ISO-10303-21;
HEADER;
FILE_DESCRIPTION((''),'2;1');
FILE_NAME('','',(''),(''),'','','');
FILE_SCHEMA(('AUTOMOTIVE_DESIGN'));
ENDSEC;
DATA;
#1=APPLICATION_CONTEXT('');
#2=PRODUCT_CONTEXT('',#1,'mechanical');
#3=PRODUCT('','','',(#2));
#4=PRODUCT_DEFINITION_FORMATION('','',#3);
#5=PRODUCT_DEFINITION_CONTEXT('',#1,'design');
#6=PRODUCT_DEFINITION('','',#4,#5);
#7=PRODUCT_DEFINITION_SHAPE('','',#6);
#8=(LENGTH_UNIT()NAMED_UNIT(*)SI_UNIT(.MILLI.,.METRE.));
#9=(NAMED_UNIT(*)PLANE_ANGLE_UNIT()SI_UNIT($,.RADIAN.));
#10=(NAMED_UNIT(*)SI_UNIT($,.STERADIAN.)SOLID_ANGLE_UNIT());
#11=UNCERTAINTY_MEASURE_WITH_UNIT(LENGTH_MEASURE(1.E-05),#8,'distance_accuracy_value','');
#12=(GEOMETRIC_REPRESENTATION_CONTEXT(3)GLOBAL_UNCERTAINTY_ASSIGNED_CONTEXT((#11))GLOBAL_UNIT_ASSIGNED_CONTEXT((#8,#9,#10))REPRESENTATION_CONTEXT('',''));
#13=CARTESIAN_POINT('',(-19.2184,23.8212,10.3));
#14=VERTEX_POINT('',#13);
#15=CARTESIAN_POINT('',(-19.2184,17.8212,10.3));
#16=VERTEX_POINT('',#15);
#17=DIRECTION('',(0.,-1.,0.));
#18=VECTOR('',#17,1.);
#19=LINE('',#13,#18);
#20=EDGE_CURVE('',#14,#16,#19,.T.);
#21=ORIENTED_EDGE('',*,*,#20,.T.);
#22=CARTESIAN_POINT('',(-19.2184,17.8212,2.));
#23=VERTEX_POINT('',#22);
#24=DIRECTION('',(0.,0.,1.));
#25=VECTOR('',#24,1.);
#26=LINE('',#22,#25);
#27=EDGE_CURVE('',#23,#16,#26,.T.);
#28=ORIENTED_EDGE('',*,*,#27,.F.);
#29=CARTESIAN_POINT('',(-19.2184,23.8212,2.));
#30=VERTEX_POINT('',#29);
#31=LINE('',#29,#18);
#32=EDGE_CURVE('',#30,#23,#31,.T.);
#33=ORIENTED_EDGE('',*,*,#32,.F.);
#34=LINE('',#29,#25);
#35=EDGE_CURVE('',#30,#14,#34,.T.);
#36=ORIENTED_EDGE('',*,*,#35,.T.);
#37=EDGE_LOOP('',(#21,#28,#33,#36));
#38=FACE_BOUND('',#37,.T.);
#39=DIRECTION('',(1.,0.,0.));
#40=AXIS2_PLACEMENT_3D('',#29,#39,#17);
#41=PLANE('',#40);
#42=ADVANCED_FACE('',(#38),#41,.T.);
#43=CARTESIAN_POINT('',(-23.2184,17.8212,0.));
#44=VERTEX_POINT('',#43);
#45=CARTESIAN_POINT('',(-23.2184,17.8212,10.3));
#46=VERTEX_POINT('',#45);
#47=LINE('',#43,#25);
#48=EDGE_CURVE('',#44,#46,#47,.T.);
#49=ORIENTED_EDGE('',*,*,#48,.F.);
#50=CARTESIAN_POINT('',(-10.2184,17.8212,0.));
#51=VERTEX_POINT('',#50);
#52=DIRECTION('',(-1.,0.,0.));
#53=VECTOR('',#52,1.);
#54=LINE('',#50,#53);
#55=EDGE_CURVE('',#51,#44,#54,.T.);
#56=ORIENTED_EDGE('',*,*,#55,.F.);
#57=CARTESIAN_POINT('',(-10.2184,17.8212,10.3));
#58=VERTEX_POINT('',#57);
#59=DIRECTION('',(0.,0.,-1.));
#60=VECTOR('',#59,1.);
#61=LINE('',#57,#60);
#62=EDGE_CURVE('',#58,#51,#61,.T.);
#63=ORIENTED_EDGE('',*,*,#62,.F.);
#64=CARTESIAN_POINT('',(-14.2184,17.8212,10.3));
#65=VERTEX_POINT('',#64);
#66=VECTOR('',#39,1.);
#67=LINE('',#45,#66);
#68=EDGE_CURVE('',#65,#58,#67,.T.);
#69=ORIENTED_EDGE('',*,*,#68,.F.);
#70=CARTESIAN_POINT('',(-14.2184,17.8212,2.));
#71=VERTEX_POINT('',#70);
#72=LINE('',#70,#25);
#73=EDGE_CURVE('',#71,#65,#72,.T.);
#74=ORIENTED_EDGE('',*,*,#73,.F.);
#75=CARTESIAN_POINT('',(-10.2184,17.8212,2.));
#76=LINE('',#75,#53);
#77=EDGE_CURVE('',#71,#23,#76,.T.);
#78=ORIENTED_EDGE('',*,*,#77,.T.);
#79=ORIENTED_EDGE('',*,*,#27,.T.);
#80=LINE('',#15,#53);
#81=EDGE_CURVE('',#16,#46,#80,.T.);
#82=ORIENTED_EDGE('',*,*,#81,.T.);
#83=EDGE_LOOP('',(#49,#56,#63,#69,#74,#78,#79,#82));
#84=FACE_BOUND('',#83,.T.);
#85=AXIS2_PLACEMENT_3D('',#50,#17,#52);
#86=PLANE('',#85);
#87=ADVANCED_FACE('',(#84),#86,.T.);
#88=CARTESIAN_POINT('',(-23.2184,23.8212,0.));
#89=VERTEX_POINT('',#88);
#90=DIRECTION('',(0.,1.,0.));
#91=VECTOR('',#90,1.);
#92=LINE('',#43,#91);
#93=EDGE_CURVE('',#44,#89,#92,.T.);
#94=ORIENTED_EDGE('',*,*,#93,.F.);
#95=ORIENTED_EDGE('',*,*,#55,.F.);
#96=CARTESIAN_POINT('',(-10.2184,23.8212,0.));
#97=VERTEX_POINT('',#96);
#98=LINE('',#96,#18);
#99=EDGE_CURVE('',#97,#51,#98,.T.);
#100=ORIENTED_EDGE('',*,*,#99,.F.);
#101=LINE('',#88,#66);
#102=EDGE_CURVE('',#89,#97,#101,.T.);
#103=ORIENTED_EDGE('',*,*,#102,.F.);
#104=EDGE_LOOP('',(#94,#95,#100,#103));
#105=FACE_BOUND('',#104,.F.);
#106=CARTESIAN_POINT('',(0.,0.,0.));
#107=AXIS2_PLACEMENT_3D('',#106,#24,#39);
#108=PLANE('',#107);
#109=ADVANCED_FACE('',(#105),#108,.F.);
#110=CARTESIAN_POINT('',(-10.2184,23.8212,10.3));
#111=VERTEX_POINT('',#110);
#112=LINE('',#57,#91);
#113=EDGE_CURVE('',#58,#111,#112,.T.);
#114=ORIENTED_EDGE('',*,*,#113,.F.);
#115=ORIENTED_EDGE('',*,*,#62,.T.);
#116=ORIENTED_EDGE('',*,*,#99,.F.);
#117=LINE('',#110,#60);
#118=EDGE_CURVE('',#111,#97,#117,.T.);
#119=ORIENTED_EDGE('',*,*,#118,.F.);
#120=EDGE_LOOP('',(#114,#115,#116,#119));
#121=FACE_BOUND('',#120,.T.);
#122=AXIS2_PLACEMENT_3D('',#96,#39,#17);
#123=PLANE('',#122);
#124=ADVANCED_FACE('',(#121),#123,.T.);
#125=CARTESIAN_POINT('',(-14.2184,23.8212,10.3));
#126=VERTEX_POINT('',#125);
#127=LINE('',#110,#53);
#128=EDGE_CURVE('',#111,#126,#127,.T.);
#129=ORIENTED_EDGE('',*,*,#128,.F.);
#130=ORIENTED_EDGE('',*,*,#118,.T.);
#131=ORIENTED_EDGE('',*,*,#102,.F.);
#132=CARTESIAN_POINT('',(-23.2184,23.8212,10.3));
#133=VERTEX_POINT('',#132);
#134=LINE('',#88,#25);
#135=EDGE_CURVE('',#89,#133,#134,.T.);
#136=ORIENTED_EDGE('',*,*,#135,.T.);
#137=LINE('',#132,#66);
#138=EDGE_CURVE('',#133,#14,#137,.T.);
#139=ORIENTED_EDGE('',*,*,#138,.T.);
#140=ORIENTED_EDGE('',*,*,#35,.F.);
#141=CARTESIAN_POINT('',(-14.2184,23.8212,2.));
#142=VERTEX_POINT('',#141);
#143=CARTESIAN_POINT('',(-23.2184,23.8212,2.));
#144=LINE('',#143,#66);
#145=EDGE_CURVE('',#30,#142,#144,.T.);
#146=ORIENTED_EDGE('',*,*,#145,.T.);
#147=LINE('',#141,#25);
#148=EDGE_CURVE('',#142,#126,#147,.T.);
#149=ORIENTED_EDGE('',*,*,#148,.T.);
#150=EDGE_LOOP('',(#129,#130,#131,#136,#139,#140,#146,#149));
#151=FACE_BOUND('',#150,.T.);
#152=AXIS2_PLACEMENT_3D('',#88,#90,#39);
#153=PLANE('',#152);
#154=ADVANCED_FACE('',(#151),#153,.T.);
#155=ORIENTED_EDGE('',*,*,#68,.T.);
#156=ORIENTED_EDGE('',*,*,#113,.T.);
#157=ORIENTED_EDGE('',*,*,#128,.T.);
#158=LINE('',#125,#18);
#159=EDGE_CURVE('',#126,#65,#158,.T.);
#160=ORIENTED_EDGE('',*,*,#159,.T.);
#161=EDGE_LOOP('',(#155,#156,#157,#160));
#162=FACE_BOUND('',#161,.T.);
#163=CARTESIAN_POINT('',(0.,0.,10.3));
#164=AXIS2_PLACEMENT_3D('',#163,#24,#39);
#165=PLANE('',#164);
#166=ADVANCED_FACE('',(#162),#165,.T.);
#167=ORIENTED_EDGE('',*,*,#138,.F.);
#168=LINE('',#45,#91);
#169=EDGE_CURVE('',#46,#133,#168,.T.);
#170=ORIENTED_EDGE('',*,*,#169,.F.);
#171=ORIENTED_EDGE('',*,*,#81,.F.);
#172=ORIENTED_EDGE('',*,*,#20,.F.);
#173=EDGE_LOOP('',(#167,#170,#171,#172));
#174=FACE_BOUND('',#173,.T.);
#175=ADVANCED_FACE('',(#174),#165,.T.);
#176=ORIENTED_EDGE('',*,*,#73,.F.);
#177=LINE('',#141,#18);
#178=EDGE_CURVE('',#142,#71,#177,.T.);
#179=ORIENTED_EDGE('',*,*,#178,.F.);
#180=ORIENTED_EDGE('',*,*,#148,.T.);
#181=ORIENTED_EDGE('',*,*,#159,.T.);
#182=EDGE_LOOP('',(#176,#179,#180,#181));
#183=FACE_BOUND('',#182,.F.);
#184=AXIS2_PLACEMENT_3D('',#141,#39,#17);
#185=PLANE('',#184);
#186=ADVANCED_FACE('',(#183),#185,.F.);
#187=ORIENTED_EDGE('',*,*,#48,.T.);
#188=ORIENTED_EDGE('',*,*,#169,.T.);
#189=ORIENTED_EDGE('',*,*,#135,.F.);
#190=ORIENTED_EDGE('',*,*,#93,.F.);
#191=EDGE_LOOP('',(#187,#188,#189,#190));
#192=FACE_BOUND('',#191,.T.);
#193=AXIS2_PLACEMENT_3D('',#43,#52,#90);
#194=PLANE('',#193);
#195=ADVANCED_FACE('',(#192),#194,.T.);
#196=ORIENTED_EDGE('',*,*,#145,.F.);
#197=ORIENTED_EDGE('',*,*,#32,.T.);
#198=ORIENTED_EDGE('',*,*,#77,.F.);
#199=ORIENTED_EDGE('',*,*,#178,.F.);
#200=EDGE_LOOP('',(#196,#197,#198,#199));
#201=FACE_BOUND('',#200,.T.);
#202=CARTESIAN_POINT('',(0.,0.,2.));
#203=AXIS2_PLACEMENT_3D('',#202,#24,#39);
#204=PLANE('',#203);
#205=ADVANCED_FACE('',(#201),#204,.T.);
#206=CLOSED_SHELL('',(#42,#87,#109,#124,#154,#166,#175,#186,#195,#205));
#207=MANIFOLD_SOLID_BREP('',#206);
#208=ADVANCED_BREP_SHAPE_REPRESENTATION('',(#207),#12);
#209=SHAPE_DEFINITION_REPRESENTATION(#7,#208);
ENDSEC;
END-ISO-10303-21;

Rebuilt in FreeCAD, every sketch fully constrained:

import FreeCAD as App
import Part
import Sketcher
from FreeCAD import Vector

doc = App.newDocument("Part")
body = doc.addObject("PartDesign::Body", "Body")

sketch1 = doc.addObject("Sketcher::SketchObject", "Sketch")
body.addObject(sketch1)
sketch1.AttachmentSupport = (doc.XY_Plane, [""])
sketch1.MapMode = "FlatFace"
sketch1.addGeometry([
    Part.LineSegment(Vector(-10.2184, 23.8212, 0), Vector(-23.2184, 23.8212, 0)),
    Part.LineSegment(Vector(-23.2184, 23.8212, 0), Vector(-23.2184, 17.8212, 0)),
    Part.LineSegment(Vector(-23.2184, 17.8212, 0), Vector(-10.2184, 17.8212, 0)),
    Part.LineSegment(Vector(-10.2184, 17.8212, 0), Vector(-10.2184, 23.8212, 0)),
], False)
sketch1.addConstraint([
    Sketcher.Constraint("Coincident", 0, 2, 1, 1),
    Sketcher.Constraint("Coincident", 1, 2, 2, 1),
    Sketcher.Constraint("Coincident", 2, 2, 3, 1),
    Sketcher.Constraint("Coincident", 3, 2, 0, 1),
    Sketcher.Constraint("Horizontal", 0),
    Sketcher.Constraint("Vertical", 1),
    Sketcher.Constraint("Horizontal", 2),
    Sketcher.Constraint("Vertical", 3),
    Sketcher.Constraint("DistanceX", 0, 2, 0, 1, 13.0),
    Sketcher.Constraint("DistanceY", 1, 2, 1, 1, 6.0),
    Sketcher.Constraint("DistanceX", 0, 2, -1, 1, 23.2184),
    Sketcher.Constraint("DistanceY", -1, 1, 0, 2, 23.8212),
])
pad1 = doc.addObject("PartDesign::Pad", "Pad")
body.addObject(pad1)
pad1.Profile = sketch1
pad1.Length = 2

sketch2 = doc.addObject("Sketcher::SketchObject", "Sketch001")
body.addObject(sketch2)
sketch2.AttachmentSupport = (doc.XY_Plane, [""])
sketch2.MapMode = "FlatFace"
sketch2.AttachmentOffset = App.Placement(Vector(0, 0, 2), App.Rotation())
sketch2.addGeometry([
    Part.LineSegment(Vector(-14.2184, 23.8212, 0), Vector(-14.2184, 17.8212, 0)),
    Part.LineSegment(Vector(-14.2184, 17.8212, 0), Vector(-10.2184, 17.8212, 0)),
    Part.LineSegment(Vector(-10.2184, 17.8212, 0), Vector(-10.2184, 23.8212, 0)),
    Part.LineSegment(Vector(-10.2184, 23.8212, 0), Vector(-14.2184, 23.8212, 0)),
    Part.LineSegment(Vector(-23.2184, 23.8212, 0), Vector(-23.2184, 17.8212, 0)),
    Part.LineSegment(Vector(-23.2184, 17.8212, 0), Vector(-19.2184, 17.8212, 0)),
    Part.LineSegment(Vector(-19.2184, 17.8212, 0), Vector(-19.2184, 23.8212, 0)),
    Part.LineSegment(Vector(-19.2184, 23.8212, 0), Vector(-23.2184, 23.8212, 0)),
], False)
sketch2.addConstraint([
    Sketcher.Constraint("Coincident", 0, 2, 1, 1),
    Sketcher.Constraint("Coincident", 1, 2, 2, 1),
    Sketcher.Constraint("Coincident", 2, 2, 3, 1),
    Sketcher.Constraint("Coincident", 3, 2, 0, 1),
    Sketcher.Constraint("Coincident", 4, 2, 5, 1),
    Sketcher.Constraint("Coincident", 5, 2, 6, 1),
    Sketcher.Constraint("Coincident", 6, 2, 7, 1),
    Sketcher.Constraint("Coincident", 7, 2, 4, 1),
    Sketcher.Constraint("Vertical", 0),
    Sketcher.Constraint("Horizontal", 1),
    Sketcher.Constraint("Vertical", 2),
    Sketcher.Constraint("Horizontal", 3),
    Sketcher.Constraint("Vertical", 4),
    Sketcher.Constraint("Horizontal", 5),
    Sketcher.Constraint("Vertical", 6),
    Sketcher.Constraint("Horizontal", 7),
    Sketcher.Constraint("Horizontal", 1, 2, 4, 2),
    Sketcher.Constraint("Horizontal", 3, 2, 6, 2),
    Sketcher.Constraint("Equal", 3, 5),
    Sketcher.Constraint("DistanceX", 1, 1, 1, 2, 4.0),
    Sketcher.Constraint("DistanceY", 0, 2, 0, 1, 6.0),
    Sketcher.Constraint("DistanceX", 4, 2, 0, 2, 9.0),
    Sketcher.Constraint("DistanceX", 0, 2, -1, 1, 14.2184),
    Sketcher.Constraint("DistanceY", -1, 1, 0, 2, 17.8212),
])
pad2 = doc.addObject("PartDesign::Pad", "Pad001")
body.addObject(pad2)
pad2.Profile = sketch2
pad2.Length = 8.3

doc.recompute()
